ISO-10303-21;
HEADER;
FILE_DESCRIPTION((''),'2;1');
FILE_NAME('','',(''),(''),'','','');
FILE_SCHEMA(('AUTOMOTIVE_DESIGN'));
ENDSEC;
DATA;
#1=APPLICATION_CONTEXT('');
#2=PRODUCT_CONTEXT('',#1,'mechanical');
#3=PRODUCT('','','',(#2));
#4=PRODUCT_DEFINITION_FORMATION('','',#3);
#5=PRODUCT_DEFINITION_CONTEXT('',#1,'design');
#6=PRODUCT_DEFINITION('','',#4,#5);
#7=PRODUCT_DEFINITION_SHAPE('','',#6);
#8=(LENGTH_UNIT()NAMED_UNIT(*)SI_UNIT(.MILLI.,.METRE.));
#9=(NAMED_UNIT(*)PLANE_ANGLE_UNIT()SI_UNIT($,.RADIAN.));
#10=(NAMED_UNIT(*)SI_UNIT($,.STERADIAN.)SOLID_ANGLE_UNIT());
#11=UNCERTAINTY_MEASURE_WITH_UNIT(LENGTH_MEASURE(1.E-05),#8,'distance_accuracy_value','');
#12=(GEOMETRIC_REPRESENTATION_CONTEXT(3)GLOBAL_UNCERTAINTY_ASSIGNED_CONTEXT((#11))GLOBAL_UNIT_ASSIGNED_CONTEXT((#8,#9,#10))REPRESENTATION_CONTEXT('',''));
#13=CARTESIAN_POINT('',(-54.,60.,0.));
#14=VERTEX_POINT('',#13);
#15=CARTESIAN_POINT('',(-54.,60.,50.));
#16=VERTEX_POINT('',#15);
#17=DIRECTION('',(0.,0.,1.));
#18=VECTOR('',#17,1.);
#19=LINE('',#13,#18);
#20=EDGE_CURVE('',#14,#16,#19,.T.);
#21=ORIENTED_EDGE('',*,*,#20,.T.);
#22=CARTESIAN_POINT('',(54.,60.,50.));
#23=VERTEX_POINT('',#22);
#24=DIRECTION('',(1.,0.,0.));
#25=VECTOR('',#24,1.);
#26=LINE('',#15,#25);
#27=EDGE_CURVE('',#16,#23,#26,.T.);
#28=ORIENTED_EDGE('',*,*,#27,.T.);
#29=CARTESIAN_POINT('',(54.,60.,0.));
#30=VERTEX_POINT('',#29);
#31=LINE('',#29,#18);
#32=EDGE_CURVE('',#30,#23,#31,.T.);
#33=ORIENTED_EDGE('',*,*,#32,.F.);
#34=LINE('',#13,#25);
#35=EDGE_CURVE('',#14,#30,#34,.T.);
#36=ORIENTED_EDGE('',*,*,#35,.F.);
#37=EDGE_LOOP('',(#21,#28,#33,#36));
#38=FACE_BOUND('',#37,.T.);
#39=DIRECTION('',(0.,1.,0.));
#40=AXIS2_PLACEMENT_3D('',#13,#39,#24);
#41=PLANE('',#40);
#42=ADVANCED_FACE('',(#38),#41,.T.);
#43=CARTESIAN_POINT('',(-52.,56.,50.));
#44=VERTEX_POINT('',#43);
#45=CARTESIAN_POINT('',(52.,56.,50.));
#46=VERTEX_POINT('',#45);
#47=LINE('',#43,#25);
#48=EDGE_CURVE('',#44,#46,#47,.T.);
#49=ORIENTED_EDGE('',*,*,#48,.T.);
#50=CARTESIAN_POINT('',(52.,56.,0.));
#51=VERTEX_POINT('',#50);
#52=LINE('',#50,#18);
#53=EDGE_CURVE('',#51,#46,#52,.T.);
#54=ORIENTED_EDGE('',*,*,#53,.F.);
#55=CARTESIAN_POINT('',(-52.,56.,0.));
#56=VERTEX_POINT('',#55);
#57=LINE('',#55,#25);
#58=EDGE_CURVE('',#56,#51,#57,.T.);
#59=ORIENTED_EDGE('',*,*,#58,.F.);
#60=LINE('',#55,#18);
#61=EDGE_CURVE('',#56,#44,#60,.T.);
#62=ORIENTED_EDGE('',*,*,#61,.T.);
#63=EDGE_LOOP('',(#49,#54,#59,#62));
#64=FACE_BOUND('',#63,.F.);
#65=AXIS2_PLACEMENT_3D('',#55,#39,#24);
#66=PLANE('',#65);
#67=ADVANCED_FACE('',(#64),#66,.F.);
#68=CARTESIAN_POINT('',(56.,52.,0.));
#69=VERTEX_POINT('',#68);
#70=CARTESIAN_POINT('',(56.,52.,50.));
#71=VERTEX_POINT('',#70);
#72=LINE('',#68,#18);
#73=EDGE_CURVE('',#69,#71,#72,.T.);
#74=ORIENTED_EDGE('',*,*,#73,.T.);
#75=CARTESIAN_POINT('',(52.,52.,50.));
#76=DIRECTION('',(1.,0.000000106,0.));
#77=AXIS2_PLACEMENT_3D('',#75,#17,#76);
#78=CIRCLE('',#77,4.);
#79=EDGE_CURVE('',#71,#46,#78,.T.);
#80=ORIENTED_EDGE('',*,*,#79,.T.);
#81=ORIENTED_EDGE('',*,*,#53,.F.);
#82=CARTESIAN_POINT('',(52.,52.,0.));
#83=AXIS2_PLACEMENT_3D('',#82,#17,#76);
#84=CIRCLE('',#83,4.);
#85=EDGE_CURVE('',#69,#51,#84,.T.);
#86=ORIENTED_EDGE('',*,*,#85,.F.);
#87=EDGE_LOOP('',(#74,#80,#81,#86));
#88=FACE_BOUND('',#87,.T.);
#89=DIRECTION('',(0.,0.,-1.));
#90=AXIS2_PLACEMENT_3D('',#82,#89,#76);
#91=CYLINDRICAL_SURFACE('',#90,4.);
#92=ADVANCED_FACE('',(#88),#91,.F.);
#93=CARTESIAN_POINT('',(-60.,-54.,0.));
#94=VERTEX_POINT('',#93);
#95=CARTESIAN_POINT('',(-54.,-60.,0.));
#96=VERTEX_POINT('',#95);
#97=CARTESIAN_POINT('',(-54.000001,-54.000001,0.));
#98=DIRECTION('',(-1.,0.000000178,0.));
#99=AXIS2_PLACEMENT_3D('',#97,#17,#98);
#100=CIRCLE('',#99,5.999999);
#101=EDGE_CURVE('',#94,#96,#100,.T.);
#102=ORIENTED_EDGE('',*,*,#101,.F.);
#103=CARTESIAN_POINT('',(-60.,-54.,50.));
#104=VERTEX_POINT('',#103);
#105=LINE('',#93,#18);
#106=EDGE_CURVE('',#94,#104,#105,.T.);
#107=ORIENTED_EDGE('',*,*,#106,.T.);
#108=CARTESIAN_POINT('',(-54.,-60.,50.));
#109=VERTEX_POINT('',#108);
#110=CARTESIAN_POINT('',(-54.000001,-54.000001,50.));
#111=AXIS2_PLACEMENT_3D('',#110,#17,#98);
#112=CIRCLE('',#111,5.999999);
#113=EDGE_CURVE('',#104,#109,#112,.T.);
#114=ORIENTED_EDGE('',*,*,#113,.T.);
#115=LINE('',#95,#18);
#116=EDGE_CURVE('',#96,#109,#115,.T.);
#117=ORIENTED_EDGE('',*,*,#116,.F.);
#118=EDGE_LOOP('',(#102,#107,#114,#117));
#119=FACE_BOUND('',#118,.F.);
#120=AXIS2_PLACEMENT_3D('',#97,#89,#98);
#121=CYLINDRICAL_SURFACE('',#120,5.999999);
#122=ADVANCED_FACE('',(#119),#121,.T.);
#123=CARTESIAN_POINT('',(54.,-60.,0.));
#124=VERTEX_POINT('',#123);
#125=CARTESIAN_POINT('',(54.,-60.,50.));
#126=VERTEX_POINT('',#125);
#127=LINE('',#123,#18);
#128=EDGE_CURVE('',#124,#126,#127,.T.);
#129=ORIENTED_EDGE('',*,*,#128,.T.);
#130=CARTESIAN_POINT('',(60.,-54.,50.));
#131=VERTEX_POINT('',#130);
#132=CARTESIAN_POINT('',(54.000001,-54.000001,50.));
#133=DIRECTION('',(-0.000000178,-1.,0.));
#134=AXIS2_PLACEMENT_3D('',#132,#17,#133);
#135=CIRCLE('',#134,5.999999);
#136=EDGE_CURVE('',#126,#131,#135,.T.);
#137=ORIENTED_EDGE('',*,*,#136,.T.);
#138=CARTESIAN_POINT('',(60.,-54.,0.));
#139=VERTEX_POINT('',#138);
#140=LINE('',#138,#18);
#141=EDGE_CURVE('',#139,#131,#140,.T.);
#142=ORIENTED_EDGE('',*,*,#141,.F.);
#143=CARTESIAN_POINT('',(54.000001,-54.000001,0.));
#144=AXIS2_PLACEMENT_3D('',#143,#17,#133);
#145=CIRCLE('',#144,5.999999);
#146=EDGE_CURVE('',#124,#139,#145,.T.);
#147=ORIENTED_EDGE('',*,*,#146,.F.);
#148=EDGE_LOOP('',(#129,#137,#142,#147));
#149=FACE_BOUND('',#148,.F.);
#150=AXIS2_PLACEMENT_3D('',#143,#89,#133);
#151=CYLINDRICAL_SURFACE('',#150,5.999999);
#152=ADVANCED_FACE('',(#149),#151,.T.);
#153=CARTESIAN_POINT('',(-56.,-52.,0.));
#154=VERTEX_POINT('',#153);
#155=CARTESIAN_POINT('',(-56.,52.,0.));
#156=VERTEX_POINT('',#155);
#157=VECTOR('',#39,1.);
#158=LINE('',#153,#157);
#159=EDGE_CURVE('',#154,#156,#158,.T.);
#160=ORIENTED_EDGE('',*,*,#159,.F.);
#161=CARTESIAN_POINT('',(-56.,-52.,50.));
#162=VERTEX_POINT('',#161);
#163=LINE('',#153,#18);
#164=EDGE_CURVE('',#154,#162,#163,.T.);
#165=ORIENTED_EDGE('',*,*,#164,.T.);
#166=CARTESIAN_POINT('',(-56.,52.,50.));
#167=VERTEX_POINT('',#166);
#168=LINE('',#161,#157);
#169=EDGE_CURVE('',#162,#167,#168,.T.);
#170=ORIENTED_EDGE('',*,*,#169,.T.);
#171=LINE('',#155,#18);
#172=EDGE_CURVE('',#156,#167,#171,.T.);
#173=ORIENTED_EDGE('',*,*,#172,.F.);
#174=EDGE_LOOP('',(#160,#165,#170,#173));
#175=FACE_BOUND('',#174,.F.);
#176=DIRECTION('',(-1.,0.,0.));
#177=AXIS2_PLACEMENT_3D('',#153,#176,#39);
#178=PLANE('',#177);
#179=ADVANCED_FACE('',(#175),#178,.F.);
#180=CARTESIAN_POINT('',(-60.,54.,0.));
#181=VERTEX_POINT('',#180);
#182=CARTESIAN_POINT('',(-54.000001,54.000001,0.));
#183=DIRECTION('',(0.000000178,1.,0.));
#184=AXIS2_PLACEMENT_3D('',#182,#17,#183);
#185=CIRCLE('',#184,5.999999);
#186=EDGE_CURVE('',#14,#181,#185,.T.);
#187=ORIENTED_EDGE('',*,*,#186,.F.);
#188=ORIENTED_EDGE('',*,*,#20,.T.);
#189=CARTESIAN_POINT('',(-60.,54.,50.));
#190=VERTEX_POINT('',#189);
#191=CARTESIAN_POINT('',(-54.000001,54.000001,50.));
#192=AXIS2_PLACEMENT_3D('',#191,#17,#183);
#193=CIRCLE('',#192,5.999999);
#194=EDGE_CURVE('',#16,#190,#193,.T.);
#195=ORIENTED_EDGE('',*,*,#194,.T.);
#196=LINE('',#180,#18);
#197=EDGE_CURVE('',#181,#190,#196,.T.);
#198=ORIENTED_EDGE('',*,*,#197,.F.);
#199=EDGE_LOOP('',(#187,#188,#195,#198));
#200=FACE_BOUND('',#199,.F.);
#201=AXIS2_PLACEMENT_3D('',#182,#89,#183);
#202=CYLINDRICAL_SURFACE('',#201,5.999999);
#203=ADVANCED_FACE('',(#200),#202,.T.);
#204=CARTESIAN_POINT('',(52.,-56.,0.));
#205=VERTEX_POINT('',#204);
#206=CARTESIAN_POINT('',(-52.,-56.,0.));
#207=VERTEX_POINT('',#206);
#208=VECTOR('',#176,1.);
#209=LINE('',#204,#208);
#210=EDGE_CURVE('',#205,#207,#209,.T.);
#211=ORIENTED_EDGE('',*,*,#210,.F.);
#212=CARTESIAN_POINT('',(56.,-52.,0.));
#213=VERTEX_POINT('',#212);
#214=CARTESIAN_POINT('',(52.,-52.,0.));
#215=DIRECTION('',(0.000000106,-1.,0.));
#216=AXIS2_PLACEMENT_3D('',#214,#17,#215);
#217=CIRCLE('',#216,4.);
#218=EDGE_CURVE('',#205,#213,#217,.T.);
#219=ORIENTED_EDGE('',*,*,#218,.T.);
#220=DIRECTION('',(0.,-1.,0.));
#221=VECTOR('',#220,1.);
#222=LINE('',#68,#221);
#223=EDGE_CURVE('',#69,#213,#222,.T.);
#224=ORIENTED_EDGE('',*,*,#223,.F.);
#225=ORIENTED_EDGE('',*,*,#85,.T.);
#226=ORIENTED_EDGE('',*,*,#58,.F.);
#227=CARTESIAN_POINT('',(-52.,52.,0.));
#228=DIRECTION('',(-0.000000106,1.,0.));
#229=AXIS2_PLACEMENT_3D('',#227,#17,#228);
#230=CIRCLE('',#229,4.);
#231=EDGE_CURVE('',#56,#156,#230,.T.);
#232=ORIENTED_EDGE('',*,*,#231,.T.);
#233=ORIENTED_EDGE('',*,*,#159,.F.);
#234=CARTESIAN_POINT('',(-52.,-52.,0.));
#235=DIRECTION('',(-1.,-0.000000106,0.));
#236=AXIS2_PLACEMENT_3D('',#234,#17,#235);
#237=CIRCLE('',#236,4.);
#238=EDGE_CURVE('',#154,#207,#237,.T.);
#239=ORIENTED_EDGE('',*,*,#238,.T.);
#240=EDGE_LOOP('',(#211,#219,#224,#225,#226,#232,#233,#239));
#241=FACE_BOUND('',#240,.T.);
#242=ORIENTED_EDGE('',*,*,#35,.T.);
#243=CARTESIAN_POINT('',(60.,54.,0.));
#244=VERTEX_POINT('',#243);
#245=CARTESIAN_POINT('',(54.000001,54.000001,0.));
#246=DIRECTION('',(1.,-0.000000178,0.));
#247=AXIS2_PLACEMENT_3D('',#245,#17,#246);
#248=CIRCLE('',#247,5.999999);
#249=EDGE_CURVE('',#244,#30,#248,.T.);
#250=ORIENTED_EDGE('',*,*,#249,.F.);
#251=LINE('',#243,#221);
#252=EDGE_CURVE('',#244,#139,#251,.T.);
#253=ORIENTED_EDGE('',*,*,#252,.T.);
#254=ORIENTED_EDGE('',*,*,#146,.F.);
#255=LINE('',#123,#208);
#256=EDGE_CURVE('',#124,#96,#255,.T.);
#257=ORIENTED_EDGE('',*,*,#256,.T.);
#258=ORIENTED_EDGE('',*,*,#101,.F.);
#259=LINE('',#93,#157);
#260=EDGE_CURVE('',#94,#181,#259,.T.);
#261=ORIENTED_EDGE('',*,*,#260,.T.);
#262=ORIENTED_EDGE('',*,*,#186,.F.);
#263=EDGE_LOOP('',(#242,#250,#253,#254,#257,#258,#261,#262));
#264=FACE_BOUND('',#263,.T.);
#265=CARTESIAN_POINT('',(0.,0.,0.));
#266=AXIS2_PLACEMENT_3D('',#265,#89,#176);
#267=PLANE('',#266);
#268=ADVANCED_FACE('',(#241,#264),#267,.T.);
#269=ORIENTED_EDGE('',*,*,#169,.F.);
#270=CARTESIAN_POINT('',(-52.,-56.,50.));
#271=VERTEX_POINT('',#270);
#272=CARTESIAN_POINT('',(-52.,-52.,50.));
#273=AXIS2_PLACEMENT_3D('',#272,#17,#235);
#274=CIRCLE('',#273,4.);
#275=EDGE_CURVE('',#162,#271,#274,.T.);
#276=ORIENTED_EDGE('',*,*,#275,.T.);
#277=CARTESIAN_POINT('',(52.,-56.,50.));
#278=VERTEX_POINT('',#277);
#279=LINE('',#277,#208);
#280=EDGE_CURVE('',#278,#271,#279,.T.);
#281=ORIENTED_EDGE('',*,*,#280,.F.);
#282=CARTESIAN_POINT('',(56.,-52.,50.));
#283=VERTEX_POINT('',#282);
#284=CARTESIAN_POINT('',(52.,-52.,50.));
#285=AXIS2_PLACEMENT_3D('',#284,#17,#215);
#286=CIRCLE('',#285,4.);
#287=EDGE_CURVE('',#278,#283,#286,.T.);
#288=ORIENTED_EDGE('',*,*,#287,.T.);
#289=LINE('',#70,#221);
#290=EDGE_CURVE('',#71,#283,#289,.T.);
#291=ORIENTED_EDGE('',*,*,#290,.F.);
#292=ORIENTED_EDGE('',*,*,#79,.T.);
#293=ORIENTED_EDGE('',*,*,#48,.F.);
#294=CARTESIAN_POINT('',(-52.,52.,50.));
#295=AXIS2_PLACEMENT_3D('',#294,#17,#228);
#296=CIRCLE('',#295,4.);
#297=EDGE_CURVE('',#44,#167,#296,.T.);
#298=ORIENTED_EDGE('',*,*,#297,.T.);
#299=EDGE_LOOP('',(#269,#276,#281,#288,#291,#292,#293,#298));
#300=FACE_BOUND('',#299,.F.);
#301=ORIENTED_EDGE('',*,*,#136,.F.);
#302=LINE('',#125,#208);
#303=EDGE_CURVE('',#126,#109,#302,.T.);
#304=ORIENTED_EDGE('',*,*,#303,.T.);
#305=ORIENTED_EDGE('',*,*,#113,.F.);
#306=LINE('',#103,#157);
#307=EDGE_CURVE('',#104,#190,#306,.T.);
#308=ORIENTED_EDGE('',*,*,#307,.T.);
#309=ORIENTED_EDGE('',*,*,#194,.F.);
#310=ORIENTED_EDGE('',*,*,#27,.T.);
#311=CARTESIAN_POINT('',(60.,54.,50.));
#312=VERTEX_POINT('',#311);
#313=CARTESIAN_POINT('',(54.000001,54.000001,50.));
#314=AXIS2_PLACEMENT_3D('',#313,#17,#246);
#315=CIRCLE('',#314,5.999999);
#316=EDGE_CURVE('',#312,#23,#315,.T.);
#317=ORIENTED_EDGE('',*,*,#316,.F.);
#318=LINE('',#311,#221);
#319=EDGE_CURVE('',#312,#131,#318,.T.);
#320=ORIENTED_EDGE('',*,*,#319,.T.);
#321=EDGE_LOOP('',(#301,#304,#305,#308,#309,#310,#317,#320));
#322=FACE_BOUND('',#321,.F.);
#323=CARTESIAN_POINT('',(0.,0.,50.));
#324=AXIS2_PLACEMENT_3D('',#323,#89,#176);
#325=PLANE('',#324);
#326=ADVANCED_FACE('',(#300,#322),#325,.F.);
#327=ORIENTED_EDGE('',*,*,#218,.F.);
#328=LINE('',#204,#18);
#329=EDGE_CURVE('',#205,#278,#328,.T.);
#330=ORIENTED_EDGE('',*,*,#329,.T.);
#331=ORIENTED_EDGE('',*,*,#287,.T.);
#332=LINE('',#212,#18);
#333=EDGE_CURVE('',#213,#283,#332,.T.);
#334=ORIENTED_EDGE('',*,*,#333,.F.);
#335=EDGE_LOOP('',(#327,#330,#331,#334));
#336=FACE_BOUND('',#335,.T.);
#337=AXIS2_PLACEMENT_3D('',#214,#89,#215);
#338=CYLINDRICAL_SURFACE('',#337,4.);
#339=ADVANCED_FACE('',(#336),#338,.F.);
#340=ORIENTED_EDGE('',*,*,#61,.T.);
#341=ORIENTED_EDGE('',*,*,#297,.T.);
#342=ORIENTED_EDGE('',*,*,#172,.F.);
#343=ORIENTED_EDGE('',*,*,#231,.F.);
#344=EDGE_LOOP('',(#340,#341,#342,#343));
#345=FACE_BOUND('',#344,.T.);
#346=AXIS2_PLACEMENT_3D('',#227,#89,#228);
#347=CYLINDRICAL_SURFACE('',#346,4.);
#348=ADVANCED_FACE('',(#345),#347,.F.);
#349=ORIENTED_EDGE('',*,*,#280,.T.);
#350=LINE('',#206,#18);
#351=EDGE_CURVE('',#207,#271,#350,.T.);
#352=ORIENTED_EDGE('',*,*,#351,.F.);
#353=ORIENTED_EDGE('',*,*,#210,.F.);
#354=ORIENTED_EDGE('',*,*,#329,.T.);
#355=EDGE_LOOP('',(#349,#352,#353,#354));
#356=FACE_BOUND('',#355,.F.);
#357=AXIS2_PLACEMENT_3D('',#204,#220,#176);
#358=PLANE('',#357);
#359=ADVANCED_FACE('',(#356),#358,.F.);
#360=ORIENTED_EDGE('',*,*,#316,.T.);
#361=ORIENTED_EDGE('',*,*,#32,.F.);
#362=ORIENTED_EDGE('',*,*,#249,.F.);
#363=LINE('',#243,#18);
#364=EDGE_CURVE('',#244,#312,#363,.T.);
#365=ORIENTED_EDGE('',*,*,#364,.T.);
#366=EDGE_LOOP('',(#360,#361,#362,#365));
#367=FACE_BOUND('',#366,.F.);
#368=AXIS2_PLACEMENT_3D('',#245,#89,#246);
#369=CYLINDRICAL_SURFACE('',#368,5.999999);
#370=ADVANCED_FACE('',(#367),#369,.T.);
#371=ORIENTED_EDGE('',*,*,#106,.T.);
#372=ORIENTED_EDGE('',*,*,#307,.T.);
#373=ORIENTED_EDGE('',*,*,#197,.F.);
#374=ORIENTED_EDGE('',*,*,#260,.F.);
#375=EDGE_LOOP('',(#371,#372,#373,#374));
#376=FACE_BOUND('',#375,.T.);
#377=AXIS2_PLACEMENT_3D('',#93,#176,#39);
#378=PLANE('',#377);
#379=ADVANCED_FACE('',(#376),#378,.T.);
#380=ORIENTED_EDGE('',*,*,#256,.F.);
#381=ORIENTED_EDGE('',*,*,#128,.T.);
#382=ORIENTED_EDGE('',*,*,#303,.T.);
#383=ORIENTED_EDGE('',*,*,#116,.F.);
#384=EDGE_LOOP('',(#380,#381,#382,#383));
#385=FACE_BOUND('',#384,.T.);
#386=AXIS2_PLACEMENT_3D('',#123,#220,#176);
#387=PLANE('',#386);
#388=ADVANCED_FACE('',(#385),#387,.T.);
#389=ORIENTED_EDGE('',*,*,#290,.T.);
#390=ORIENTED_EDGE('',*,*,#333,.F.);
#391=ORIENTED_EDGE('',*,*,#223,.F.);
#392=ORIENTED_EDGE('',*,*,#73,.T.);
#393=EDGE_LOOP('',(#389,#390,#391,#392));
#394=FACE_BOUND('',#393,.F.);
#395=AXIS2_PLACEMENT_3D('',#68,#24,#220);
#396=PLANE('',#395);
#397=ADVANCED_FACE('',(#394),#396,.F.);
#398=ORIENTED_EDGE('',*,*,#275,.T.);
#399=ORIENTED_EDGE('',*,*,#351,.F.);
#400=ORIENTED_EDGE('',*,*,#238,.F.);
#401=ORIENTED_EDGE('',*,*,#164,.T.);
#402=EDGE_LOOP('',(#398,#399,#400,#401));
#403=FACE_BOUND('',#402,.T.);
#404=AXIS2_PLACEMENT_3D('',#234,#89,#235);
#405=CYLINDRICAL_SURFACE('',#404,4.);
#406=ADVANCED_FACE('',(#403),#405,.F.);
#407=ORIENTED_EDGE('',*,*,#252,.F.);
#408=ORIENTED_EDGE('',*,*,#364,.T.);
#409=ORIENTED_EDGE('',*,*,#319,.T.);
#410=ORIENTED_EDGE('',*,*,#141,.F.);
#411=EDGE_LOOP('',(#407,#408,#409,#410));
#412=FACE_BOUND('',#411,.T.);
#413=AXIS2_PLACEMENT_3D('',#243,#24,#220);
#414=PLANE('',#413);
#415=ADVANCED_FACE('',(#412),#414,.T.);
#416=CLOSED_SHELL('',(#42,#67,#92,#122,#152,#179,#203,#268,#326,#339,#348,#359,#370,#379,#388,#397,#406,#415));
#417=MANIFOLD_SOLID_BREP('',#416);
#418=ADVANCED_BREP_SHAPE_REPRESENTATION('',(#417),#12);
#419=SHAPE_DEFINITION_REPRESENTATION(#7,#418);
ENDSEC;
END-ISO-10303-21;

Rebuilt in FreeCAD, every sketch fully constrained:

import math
import FreeCAD as App
import Part
import Sketcher
from FreeCAD import Vector

doc = App.newDocument("Part")
body = doc.addObject("PartDesign::Body", "Body")

sketch1 = body.newObject("Sketcher::SketchObject", "Sketch")
sketch1.AttachmentSupport = (doc.getObject("XY_Plane"), [""])
sketch1.MapMode = "FlatFace"
sketch1.addGeometry([
    Part.LineSegment(Vector(54, 60, 0), Vector(-54, 60, 0)),
    Part.ArcOfCircle(Part.Circle(Vector(-54, 54, 0), Vector(0, 0, 1), 6), math.radians(90), math.radians(180)),
    Part.LineSegment(Vector(-60, 54, 0), Vector(-60, -54, 0)),
    Part.ArcOfCircle(Part.Circle(Vector(-54, -54, 0), Vector(0, 0, 1), 6), math.radians(180), math.radians(270)),
    Part.LineSegment(Vector(-54, -60, 0), Vector(54, -60, 0)),
    Part.ArcOfCircle(Part.Circle(Vector(54, -54, 0), Vector(0, 0, 1), 6), math.radians(-90), math.radians(0)),
    Part.LineSegment(Vector(60, -54, 0), Vector(60, 54, 0)),
    Part.ArcOfCircle(Part.Circle(Vector(54, 54, 0), Vector(0, 0, 1), 6), math.radians(0), math.radians(90)),
    Part.LineSegment(Vector(-52, 56, 0), Vector(52, 56, 0)),
    Part.ArcOfCircle(Part.Circle(Vector(52, 52, 0), Vector(0, 0, 1), 4), math.radians(0), math.radians(90)),
    Part.LineSegment(Vector(56, 52, 0), Vector(56, -52, 0)),
    Part.ArcOfCircle(Part.Circle(Vector(52, -52, 0), Vector(0, 0, 1), 4), math.radians(-90), math.radians(0)),
    Part.LineSegment(Vector(52, -56, 0), Vector(-52, -56, 0)),
    Part.ArcOfCircle(Part.Circle(Vector(-52, -52, 0), Vector(0, 0, 1), 4), math.radians(-180), math.radians(-90)),
    Part.LineSegment(Vector(-56, -52, 0), Vector(-56, 52, 0)),
    Part.ArcOfCircle(Part.Circle(Vector(-52, 52, 0), Vector(0, 0, 1), 4), math.radians(90), math.radians(180)),
], False)
sketch1.addConstraint([
    Sketcher.Constraint("Tangent", 0, 2, 1, 1),
    Sketcher.Constraint("Tangent", 1, 2, 2, 1),
    Sketcher.Constraint("Tangent", 2, 2, 3, 1),
    Sketcher.Constraint("Tangent", 3, 2, 4, 1),
    Sketcher.Constraint("Tangent", 4, 2, 5, 1),
    Sketcher.Constraint("Tangent", 5, 2, 6, 1),
    Sketcher.Constraint("Tangent", 6, 2, 7, 1),
    Sketcher.Constraint("Tangent", 7, 2, 0, 1),
    Sketcher.Constraint("Tangent", 8, 2, 9, 2),
    Sketcher.Constraint("Tangent", 9, 1, 10, 1),
    Sketcher.Constraint("Tangent", 10, 2, 11, 2),
    Sketcher.Constraint("Tangent", 11, 1, 12, 1),
    Sketcher.Constraint("Tangent", 12, 2, 13, 2),
    Sketcher.Constraint("Tangent", 13, 1, 14, 1),
    Sketcher.Constraint("Tangent", 14, 2, 15, 2),
    Sketcher.Constraint("Tangent", 15, 1, 8, 1),
    Sketcher.Constraint("Horizontal", 0),
    Sketcher.Constraint("Vertical", 2),
    Sketcher.Constraint("Horizontal", 4),
    Sketcher.Constraint("Vertical", 6),
    Sketcher.Constraint("Horizontal", 8),
    Sketcher.Constraint("Vertical", 10),
    Sketcher.Constraint("Horizontal", 12),
    Sketcher.Constraint("Vertical", 14),
    Sketcher.Constraint("Equal", 1, 3),
    Sketcher.Constraint("Equal", 3, 5),
    Sketcher.Constraint("Equal", 5, 7),
    Sketcher.Constraint("Equal", 9, 11),
    Sketcher.Constraint("Equal", 11, 13),
    Sketcher.Constraint("Equal", 13, 15),
    Sketcher.Constraint("Symmetric", 1, 3, 5, 3, -1, 1),
    Sketcher.Constraint("Symmetric", 9, 3, 13, 3, -1, 1),
    Sketcher.Constraint("Equal", 4, 2),
    Sketcher.Constraint("Equal", 12, 10),
    Sketcher.Constraint("Radius", 1, 5.999999),
    Sketcher.Constraint("Radius", 9, 4.0),
    Sketcher.Constraint("DistanceX", 0, 2, 0, 1, 108.0),
    Sketcher.Constraint("DistanceX", 8, 1, 8, 2, 104.0),
])
pad1 = body.newObject("PartDesign::Pad", "Pad")
pad1.Profile = sketch1
pad1.Length = 50

doc.recompute()
